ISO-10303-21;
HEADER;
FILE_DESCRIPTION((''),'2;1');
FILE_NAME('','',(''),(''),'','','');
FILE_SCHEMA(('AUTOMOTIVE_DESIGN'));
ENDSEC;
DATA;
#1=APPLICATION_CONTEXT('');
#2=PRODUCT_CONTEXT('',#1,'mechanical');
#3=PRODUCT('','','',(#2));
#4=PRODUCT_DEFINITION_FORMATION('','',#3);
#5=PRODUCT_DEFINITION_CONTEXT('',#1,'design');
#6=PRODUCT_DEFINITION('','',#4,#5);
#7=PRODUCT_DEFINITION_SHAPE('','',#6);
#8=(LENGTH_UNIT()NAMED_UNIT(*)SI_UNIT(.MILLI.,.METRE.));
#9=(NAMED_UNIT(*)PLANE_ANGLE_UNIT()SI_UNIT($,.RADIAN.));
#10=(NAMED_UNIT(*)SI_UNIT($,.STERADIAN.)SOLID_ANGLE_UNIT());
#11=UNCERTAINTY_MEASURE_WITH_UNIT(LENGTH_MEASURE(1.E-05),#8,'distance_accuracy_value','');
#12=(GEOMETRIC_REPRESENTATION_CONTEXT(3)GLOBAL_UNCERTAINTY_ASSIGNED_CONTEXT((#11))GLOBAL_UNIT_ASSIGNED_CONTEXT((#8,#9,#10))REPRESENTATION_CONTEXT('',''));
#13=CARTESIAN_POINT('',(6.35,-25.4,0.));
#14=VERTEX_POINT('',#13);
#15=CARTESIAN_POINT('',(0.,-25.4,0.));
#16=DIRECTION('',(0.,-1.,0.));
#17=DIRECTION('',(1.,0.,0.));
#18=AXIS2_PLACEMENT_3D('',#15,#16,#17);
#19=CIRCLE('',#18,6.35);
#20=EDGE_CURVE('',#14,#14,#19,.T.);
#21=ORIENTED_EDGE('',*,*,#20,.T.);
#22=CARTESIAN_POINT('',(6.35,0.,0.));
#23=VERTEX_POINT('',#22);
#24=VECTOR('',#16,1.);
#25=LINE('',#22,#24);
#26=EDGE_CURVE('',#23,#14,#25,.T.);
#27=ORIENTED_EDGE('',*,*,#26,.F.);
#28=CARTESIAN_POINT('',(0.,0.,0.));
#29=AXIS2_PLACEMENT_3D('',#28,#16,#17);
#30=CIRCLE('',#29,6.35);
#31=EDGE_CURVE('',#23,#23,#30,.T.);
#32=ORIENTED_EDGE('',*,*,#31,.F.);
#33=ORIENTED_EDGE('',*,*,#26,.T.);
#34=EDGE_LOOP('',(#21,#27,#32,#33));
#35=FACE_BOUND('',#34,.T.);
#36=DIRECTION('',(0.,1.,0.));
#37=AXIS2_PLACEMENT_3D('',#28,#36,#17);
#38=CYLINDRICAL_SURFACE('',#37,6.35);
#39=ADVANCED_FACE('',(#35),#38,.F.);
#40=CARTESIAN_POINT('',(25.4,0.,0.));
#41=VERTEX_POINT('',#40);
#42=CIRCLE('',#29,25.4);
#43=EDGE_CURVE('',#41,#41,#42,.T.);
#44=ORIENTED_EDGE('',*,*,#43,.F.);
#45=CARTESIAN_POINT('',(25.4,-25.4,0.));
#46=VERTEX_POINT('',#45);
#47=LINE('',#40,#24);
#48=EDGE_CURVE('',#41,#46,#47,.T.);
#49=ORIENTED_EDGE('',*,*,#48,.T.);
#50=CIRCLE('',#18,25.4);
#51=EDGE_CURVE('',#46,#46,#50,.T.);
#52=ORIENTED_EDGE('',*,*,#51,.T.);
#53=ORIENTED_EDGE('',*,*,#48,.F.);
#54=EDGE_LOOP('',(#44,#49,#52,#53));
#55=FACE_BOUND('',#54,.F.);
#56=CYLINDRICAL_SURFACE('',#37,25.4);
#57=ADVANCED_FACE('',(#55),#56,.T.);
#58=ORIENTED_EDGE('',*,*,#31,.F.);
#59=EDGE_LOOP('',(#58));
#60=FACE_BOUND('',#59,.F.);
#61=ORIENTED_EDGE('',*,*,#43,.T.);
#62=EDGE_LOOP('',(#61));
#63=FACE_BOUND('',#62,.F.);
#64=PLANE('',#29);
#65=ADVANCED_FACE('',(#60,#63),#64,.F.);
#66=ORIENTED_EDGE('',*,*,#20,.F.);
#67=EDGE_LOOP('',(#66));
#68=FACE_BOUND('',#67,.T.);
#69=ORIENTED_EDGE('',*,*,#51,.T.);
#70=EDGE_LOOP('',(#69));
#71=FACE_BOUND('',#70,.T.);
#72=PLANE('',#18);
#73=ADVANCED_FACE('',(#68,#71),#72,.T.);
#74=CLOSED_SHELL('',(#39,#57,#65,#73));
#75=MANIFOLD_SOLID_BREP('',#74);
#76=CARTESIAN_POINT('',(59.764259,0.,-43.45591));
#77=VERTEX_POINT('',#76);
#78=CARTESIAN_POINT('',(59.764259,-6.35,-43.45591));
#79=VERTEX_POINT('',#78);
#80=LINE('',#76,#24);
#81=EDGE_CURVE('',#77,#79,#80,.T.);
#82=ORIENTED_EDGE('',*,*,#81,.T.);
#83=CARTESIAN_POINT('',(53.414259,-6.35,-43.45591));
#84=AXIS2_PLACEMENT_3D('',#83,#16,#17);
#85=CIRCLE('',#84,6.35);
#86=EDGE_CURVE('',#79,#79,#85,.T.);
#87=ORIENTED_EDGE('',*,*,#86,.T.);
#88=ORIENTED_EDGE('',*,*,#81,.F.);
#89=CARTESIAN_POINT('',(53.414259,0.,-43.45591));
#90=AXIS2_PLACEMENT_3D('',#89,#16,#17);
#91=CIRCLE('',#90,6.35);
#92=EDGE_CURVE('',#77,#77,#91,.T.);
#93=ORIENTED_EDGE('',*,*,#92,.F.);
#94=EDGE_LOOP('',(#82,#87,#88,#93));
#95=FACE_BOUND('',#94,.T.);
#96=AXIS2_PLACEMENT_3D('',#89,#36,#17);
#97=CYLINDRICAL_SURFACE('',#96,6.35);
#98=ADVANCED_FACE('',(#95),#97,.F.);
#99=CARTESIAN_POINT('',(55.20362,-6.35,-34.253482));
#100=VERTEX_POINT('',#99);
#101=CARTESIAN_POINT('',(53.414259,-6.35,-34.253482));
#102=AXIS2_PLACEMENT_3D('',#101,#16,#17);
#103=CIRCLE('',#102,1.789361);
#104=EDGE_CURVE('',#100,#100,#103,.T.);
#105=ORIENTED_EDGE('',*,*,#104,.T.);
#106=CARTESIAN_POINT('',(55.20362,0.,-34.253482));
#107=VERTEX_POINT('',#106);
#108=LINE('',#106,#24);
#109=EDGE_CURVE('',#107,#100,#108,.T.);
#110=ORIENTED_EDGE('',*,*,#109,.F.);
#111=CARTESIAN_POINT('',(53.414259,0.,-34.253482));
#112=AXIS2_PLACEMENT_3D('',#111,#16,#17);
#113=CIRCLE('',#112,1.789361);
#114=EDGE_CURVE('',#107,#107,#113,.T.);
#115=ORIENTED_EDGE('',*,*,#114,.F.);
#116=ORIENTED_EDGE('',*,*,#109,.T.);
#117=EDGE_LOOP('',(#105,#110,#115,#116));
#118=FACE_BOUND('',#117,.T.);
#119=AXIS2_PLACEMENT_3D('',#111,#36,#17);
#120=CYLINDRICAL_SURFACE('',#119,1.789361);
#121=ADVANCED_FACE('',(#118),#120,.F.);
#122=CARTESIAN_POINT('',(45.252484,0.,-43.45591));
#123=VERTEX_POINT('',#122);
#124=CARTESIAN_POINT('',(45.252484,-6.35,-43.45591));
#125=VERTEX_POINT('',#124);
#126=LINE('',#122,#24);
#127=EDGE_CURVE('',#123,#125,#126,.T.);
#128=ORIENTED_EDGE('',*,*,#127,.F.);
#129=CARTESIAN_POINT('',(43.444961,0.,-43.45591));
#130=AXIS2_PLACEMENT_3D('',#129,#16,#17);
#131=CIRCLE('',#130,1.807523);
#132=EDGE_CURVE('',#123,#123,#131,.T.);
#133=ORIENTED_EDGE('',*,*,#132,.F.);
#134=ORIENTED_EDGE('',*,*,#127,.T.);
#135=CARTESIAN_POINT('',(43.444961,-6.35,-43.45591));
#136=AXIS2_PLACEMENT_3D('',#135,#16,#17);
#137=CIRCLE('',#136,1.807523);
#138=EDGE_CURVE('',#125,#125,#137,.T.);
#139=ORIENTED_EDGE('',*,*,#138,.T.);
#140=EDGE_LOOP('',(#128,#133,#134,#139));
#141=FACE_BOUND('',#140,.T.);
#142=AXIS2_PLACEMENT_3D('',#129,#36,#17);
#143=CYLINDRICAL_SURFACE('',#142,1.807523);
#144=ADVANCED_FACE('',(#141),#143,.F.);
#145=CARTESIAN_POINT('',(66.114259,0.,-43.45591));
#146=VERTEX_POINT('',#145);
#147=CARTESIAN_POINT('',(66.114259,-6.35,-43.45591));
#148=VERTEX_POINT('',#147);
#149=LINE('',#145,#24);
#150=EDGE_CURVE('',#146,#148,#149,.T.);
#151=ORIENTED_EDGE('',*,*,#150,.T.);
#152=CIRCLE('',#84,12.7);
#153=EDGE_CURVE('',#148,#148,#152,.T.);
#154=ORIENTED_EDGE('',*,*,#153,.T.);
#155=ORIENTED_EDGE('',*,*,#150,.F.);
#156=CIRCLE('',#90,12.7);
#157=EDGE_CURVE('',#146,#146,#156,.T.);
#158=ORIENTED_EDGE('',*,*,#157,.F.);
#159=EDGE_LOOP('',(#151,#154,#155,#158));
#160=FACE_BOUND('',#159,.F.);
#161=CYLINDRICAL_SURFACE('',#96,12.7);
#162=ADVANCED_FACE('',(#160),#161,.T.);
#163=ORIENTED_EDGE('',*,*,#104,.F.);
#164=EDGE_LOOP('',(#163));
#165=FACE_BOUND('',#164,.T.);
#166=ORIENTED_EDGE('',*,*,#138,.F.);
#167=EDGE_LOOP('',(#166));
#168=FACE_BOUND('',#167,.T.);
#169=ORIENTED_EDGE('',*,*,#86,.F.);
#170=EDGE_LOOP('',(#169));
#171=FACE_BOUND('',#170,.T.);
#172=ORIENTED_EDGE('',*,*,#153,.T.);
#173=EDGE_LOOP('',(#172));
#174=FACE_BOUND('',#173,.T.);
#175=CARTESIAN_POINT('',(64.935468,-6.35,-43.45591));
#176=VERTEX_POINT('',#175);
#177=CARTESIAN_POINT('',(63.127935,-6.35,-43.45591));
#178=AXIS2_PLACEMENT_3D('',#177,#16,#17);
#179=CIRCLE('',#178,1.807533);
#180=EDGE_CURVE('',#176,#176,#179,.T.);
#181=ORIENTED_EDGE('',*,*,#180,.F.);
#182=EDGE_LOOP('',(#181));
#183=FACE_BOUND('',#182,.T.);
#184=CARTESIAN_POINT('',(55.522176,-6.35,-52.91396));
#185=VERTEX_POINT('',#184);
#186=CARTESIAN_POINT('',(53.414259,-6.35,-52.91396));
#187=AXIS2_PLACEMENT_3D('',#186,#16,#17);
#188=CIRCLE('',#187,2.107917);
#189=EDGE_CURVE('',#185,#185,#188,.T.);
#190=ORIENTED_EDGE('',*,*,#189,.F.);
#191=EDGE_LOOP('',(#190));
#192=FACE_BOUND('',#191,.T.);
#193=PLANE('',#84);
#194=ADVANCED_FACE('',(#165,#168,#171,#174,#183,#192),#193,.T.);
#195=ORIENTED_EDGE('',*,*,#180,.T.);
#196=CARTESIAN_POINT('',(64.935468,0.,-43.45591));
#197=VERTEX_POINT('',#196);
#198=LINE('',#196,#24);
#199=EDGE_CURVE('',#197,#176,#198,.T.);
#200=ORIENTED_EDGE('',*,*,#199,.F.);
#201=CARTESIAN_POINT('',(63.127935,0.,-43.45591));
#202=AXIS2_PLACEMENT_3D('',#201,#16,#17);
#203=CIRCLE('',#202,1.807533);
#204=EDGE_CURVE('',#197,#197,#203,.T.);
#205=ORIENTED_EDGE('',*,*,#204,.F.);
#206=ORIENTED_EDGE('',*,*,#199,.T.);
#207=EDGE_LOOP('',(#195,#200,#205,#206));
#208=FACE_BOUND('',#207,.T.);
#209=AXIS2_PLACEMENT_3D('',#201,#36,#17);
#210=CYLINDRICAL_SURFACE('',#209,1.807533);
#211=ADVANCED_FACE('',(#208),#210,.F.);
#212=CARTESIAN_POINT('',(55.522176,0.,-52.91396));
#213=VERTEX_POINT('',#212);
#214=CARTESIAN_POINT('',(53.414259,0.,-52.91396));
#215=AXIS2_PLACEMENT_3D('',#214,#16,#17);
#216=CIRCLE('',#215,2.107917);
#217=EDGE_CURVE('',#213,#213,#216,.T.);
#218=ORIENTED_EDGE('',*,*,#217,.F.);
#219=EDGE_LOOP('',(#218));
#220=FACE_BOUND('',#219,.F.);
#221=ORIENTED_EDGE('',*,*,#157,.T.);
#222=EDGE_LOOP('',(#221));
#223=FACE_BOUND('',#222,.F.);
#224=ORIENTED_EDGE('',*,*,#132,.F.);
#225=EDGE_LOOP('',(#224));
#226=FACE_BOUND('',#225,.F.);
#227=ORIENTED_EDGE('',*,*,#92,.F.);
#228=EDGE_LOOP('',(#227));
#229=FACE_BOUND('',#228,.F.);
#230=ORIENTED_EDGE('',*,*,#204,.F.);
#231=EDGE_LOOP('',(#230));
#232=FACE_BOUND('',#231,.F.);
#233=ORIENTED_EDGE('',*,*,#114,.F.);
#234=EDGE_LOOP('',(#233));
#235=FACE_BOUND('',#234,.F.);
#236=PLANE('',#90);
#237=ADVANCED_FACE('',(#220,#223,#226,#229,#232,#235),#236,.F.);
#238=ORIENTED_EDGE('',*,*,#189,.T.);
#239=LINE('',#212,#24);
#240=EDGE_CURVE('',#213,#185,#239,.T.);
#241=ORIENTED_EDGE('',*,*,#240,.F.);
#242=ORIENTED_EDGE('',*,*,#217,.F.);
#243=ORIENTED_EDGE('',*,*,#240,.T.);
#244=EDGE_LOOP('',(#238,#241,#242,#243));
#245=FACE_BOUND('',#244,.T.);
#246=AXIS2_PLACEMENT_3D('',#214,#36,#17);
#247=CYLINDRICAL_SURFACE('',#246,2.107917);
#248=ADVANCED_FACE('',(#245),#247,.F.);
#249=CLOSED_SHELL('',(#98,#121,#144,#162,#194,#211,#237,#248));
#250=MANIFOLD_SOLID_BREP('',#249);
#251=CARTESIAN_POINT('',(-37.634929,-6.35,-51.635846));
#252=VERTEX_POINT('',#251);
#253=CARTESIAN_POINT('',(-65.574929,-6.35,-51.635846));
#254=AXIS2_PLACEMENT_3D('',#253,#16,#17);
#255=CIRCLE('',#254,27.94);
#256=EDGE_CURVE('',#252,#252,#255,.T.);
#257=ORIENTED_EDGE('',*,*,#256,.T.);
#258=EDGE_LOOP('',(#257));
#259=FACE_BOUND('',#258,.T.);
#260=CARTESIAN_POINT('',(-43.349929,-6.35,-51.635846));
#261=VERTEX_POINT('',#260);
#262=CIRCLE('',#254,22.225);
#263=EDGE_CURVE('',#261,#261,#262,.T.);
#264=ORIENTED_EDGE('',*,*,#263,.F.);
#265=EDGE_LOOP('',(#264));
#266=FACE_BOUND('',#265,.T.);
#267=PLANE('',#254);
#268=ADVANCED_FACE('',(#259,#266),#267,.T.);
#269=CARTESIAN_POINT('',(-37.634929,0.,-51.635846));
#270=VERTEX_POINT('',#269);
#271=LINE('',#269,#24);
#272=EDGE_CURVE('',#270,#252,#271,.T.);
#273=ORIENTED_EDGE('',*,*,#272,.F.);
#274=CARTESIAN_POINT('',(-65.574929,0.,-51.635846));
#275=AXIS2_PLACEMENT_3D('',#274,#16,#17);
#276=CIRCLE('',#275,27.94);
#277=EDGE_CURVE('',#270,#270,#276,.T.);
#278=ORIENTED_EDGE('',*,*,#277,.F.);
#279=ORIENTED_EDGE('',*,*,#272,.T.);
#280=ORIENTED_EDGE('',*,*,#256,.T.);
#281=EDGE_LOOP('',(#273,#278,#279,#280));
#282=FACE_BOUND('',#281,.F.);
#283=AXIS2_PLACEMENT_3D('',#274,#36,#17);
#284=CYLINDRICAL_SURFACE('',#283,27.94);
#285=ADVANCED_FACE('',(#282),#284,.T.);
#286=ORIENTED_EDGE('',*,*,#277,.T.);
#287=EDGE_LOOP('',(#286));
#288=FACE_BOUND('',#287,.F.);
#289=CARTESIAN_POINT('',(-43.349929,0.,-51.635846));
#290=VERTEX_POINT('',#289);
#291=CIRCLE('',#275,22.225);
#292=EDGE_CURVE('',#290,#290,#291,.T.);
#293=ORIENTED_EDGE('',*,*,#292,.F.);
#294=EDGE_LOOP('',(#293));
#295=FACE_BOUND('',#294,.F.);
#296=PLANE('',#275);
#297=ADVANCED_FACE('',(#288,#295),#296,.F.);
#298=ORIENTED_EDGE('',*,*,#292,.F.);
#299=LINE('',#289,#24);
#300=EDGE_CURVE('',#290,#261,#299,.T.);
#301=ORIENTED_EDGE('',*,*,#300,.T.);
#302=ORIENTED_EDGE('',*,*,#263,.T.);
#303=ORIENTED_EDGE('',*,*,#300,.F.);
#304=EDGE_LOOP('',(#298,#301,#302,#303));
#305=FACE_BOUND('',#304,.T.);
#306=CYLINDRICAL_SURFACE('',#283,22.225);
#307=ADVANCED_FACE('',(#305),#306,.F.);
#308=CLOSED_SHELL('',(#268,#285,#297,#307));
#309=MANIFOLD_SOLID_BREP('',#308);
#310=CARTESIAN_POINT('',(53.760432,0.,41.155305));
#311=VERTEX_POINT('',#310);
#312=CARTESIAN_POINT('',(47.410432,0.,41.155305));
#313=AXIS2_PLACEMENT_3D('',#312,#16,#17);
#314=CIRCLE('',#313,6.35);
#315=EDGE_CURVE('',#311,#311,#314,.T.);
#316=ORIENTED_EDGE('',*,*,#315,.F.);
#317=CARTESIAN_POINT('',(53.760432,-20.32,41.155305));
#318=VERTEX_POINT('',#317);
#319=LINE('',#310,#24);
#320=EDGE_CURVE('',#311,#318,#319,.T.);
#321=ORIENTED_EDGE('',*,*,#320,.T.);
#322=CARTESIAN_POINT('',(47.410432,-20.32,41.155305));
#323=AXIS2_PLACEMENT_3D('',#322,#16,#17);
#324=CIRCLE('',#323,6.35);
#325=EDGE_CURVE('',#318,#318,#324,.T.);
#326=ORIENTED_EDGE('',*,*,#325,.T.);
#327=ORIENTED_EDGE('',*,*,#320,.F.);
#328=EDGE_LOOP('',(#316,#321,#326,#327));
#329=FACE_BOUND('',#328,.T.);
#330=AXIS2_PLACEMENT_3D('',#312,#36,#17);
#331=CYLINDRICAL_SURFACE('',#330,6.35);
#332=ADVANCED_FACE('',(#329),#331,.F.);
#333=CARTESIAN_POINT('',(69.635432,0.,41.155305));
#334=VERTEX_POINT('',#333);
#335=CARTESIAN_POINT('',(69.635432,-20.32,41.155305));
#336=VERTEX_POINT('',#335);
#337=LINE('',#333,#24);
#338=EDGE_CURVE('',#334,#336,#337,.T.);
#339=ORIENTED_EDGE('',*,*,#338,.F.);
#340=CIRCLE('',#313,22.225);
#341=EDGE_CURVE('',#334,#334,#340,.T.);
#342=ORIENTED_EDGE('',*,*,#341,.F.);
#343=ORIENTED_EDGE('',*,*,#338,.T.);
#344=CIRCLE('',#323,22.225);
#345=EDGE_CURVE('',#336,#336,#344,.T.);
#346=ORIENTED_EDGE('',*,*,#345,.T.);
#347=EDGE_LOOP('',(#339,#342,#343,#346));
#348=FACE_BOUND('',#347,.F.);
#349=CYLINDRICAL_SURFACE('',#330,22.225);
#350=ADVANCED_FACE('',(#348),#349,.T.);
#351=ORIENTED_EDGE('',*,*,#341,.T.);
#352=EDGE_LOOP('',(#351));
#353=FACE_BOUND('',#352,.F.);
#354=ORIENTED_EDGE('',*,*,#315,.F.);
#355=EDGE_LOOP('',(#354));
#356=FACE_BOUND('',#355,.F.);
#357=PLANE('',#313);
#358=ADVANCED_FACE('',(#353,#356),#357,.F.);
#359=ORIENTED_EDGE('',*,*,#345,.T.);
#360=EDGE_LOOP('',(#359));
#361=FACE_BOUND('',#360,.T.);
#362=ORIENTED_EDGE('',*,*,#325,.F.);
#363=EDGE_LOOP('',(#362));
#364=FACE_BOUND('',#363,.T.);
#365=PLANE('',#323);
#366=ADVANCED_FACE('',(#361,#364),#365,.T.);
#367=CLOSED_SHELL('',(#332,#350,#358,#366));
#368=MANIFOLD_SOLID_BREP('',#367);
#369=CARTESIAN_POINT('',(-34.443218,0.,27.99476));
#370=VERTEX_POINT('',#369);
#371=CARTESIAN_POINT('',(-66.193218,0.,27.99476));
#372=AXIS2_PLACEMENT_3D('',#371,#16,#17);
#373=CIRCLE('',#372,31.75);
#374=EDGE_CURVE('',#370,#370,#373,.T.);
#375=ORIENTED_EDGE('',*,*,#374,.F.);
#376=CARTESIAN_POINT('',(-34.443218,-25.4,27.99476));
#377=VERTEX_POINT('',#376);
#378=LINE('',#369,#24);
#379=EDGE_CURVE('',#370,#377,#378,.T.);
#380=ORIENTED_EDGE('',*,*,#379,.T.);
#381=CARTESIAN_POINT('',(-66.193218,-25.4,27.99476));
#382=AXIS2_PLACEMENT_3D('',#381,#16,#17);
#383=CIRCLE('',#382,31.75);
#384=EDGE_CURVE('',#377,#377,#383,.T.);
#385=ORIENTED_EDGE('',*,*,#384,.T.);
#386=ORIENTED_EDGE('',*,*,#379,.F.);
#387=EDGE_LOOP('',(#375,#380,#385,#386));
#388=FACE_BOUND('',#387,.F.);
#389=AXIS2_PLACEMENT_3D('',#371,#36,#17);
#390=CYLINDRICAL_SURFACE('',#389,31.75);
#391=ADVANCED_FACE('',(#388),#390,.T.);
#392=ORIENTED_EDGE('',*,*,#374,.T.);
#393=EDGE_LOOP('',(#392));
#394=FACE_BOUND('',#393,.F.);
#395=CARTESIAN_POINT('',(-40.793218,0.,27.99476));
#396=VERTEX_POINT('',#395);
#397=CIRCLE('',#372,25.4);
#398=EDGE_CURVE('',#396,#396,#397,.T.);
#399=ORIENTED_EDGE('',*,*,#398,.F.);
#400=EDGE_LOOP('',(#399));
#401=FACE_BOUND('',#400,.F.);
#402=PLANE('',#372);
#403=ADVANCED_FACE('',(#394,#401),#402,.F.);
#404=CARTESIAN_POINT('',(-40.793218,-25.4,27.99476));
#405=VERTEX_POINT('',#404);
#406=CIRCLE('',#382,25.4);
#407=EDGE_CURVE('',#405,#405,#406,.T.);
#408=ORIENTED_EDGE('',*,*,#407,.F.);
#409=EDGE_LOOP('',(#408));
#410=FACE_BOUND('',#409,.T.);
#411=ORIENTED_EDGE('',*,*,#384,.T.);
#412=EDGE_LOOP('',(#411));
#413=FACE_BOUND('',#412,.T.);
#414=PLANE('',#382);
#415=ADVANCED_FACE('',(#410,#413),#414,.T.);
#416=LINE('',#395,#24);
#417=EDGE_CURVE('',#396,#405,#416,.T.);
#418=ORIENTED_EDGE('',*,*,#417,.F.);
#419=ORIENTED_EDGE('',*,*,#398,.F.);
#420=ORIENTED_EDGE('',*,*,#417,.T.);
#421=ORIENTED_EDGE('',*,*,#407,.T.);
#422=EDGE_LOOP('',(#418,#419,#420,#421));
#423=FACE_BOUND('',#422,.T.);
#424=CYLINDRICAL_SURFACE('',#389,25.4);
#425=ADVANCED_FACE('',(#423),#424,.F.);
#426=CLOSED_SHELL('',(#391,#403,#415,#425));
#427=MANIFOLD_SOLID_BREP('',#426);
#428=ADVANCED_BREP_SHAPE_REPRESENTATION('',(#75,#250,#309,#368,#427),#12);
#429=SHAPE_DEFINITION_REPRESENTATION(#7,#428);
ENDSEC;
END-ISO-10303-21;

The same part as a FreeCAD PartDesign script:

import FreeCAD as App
import Part
import Sketcher
Q = App.Units.Quantity

doc = App.newDocument("Part")
body = doc.addObject("PartDesign::Body", "Body")
body.AllowCompound = True

sketch1 = body.newObject("Sketcher::SketchObject", "Sketch")
sketch1.AttachmentSupport = (doc.getObject("XZ_Plane"), [""])
sketch1.MapMode = "FlatFace"
sketch1.addGeometry([
    Part.Circle(App.Vector(0, 0, 0), App.Vector(0, 0, 1), 25),
    Part.Circle(App.Vector(0, 0, 0), App.Vector(0, 0, 1), 6),
    Part.Circle(App.Vector(-66, 28, 0), App.Vector(0, 0, 1), 32),
    Part.Circle(App.Vector(-66, 28, 0), App.Vector(0, 0, 1), 25),
], False)
sketch1.addConstraint([
    Sketcher.Constraint("Coincident", 0, 3, -1, 1),
    Sketcher.Constraint("Coincident", 1, 3, -1, 1),
    Sketcher.Constraint("Coincident", 3, 3, 2, 3),
    Sketcher.Constraint("Equal", 0, 3),
    Sketcher.Constraint("Diameter", 0, Q("2 in")),
    Sketcher.Constraint("Diameter", 1, Q("0.5 in")),
    Sketcher.Constraint("Diameter", 2, Q("2.5 in")),
    Sketcher.Constraint("DistanceX", 2, 3, -1, 1, Q("66.193218 mm")),
    Sketcher.Constraint("DistanceY", -1, 1, 2, 3, Q("27.99476 mm")),
])
pad1 = body.newObject("PartDesign::Pad", "Pad")
pad1.Profile = sketch1
pad1.Length = Q("1 in")
body2 = doc.addObject("PartDesign::Body", "Body001")

sketch2 = body2.newObject("Sketcher::SketchObject", "Sketch001")
sketch2.AttachmentSupport = (doc.getObject("XZ_Plane001"), [""])
sketch2.MapMode = "FlatFace"
sketch2.addGeometry([
    Part.Circle(App.Vector(47, 41, 0), App.Vector(0, 0, 1), 22),
    Part.Circle(App.Vector(47, 41, 0), App.Vector(0, 0, 1), 6),
], False)
sketch2.addConstraint([
    Sketcher.Constraint("Coincident", 1, 3, 0, 3),
    Sketcher.Constraint("Diameter", 1, Q("0.5 in")),
    Sketcher.Constraint("Diameter", 0, Q("1.75 in")),
    Sketcher.Constraint("DistanceX", -1, 1, 0, 3, Q("47.410432 mm")),
    Sketcher.Constraint("DistanceY", -1, 1, 0, 3, Q("41.155305 mm")),
])
pad2 = body2.newObject("PartDesign::Pad", "Pad001")
pad2.Profile = sketch2
pad2.Length = Q("0.8 in")
body3 = doc.addObject("PartDesign::Body", "Body002")

sketch3 = body3.newObject("Sketcher::SketchObject", "Sketch002")
sketch3.AttachmentSupport = (doc.getObject("XZ_Plane002"), [""])
sketch3.MapMode = "FlatFace"
sketch3.addGeometry([
    Part.Circle(App.Vector(-66, -52, 0), App.Vector(0, 0, 1), 28),
    Part.Circle(App.Vector(-66, -52, 0), App.Vector(0, 0, 1), 22),
], False)
sketch3.addConstraint([
    Sketcher.Constraint("Coincident", 1, 3, 0, 3),
    Sketcher.Constraint("Diameter", 0, Q("2.2 in")),
    Sketcher.Constraint("Diameter", 1, Q("1.75 in")),
    Sketcher.Constraint("DistanceX", 0, 3, -1, 1, Q("65.574929 mm")),
    Sketcher.Constraint("DistanceY", 0, 3, -1, 1, Q("51.635846 mm")),
])
pad3 = body3.newObject("PartDesign::Pad", "Pad002")
pad3.Profile = sketch3
pad3.Length = Q("0.25 in")
body4 = doc.addObject("PartDesign::Body", "Body003")

sketch4 = body4.newObject("Sketcher::SketchObject", "Sketch003")
sketch4.AttachmentSupport = (doc.getObject("XZ_Plane003"), [""])
sketch4.MapMode = "FlatFace"
sketch4.addGeometry([
    Part.Circle(App.Vector(53.4, -43.5, 0), App.Vector(0, 0, 1), 12.7),
    Part.Circle(App.Vector(53.4, -52.9, 0), App.Vector(0, 0, 1), 2.1),
    Part.Circle(App.Vector(43.4, -43.5, 0), App.Vector(0, 0, 1), 1.8),
    Part.Circle(App.Vector(53.4, -43.5, 0), App.Vector(0, 0, 1), 6.3),
    Part.Circle(App.Vector(63.1, -43.5, 0), App.Vector(0, 0, 1), 1.8),
    Part.Circle(App.Vector(53.4, -34.3, 0), App.Vector(0, 0, 1), 1.8),
], False)
sketch4.addConstraint([
    Sketcher.Constraint("Coincident", 3, 3, 0, 3),
    Sketcher.Constraint("Horizontal", 0, 3, 2, 3),
    Sketcher.Constraint("Horizontal", 3, 3, 4, 3),
    Sketcher.Constraint("Vertical", 0, 3, 1, 3),
    Sketcher.Constraint("Vertical", 3, 3, 5, 3),
    Sketcher.Constraint("Diameter", 0, Q("1 in")),
    Sketcher.Constraint("Diameter", 3, Q("0.5 in")),
    Sketcher.Constraint("Diameter", 5, Q("3.578722 mm")),
    Sketcher.Constraint("Diameter", 1, Q("4.215834 mm")),
    Sketcher.Constraint("Diameter", 2, Q("3.615046 mm")),
    Sketcher.Constraint("Diameter", 4, Q("3.615066 mm")),
    Sketcher.Constraint("DistanceX", 2, 3, 0, 3, Q("9.969298 mm")),
    Sketcher.Constraint("DistanceX", -1, 1, 0, 3, Q("53.414259 mm")),
    Sketcher.Constraint("DistanceY", 0, 3, -1, 1, Q("43.45591 mm")),
    Sketcher.Constraint("DistanceY", 1, 3, -1, 1, Q("52.91396 mm")),
    Sketcher.Constraint("DistanceY", 5, 3, -1, 1, Q("34.253482 mm")),
    Sketcher.Constraint("DistanceX", -1, 1, 4, 3, Q("63.127935 mm")),
])
pad4 = body4.newObject("PartDesign::Pad", "Pad003")
pad4.Profile = sketch4
pad4.Length = Q("0.25 in")

doc.recompute()
